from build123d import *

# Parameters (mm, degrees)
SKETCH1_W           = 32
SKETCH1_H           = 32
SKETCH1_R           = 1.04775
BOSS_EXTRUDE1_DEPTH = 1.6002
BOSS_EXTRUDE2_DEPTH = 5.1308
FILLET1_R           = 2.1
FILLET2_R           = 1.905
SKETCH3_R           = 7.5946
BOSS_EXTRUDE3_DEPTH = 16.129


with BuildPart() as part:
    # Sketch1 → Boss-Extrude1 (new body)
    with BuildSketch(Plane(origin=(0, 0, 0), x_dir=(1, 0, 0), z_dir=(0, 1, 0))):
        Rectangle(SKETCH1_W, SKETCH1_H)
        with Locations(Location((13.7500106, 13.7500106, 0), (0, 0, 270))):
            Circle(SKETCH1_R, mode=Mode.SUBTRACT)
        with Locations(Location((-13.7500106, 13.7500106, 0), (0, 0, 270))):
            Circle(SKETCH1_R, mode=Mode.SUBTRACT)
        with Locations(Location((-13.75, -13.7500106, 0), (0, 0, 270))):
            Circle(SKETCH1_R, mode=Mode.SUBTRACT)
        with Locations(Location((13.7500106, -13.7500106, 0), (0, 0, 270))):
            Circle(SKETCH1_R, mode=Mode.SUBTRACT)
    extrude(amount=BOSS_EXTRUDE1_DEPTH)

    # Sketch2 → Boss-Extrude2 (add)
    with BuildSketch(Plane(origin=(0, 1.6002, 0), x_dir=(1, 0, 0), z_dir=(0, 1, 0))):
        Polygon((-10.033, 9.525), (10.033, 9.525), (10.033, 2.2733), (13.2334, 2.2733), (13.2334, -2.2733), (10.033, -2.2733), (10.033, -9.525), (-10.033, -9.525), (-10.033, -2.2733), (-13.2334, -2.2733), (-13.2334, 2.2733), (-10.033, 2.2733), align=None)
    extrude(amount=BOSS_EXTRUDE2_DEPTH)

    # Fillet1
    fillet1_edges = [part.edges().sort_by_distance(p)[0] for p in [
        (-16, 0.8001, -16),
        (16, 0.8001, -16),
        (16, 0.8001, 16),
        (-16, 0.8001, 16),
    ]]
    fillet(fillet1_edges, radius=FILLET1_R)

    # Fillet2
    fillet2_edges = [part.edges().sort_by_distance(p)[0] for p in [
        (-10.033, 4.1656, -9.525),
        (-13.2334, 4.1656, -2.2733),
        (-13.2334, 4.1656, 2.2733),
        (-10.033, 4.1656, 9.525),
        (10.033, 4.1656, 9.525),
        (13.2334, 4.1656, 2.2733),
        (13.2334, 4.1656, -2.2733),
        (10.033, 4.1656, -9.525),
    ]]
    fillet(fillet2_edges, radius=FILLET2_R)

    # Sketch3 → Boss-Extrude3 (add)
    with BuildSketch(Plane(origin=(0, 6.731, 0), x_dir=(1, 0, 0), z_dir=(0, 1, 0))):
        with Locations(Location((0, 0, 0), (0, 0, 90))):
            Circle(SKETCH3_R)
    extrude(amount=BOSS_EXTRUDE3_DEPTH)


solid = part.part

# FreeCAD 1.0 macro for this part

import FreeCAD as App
import Part
import Sketcher
Q = App.Units.Quantity


def edges_at(feature, points):
    """Names of the edges that pass closest to the given points."""
    edges = feature.Shape.Edges
    near = lambda p: min(range(len(edges)), key=lambda i: edges[i].distToShape(Part.Vertex(*p))[0])
    return sorted({f"Edge{near(p) + 1}" for p in points})

doc = App.newDocument("Part")
body = doc.addObject("PartDesign::Body", "Body")

# Sketch on XZ plane
sketch1 = body.newObject("Sketcher::SketchObject", "Sketch")
sketch1.AttachmentSupport = (doc.getObject("XZ_Plane"), [""])
sketch1.MapMode = "FlatFace"
sketch1.addGeometry([
    Part.LineSegment(App.Vector(-16, -16, 0), App.Vector(-16, 16, 0)),  # 0
    Part.LineSegment(App.Vector(-16, 16, 0), App.Vector(16, 16, 0)),  # 1
    Part.LineSegment(App.Vector(16, 16, 0), App.Vector(16, -16, 0)),  # 2
    Part.LineSegment(App.Vector(16, -16, 0), App.Vector(-16, -16, 0)),  # 3
    Part.Circle(App.Vector(-13.8, 13.8, 0), App.Vector(0, 0, 1), 1),  # 4
    Part.Circle(App.Vector(13.8, 13.8, 0), App.Vector(0, 0, 1), 1),  # 5
    Part.Circle(App.Vector(-13.8, -13.8, 0), App.Vector(0, 0, 1), 1),  # 6
    Part.Circle(App.Vector(13.8, -13.8, 0), App.Vector(0, 0, 1), 1),  # 7
], False)
sketch1.addConstraint([
    Sketcher.Constraint("Coincident", 0, 2, 1, 1),
    Sketcher.Constraint("Coincident", 1, 2, 2, 1),
    Sketcher.Constraint("Coincident", 2, 2, 3, 1),
    Sketcher.Constraint("Coincident", 3, 2, 0, 1),
    Sketcher.Constraint("Vertical", 0),
    Sketcher.Constraint("Horizontal", 1),
    Sketcher.Constraint("Vertical", 2),
    Sketcher.Constraint("Horizontal", 3),
    Sketcher.Constraint("Equal", 4, 5),
    Sketcher.Constraint("Equal", 5, 6),
    Sketcher.Constraint("Equal", 6, 7),
    Sketcher.Constraint("Symmetric", 5, 3, 6, 3, -1, 1),
    Sketcher.Constraint("Symmetric", 0, 2, 2, 2, -1, 1),
    Sketcher.Constraint("Symmetric", 6, 3, 7, 3, -2),
    Sketcher.Constraint("Horizontal", 4, 3, 5, 3),
    Sketcher.Constraint("Equal", 3, 0),
    Sketcher.Constraint("Diameter", 4, Q("0.0825 in")),
    Sketcher.Constraint("DistanceX", 1, 1, 1, 2, 32.0),
    Sketcher.Constraint("DistanceX", 4, 3, -1, 1, 13.75),
    Sketcher.Constraint("DistanceY", -1, 1, 4, 3, 13.750011),
    Sketcher.Constraint("DistanceX", -1, 1, 5, 3, 13.750011),
])
pad1 = body.newObject("PartDesign::Pad", "Pad")
pad1.Profile = sketch1
pad1.Length = Q("0.063 in")
pad1.Reversed = True

# Sketch on XZ plane
sketch2 = body.newObject("Sketcher::SketchObject", "Sketch001")
sketch2.AttachmentSupport = (doc.getObject("XZ_Plane"), [""])
sketch2.MapMode = "FlatFace"
sketch2.AttachmentOffset = App.Placement(App.Vector(0, 0, -0.063 * 25.4), App.Rotation())
sketch2.addGeometry([
    Part.LineSegment(App.Vector(10, -9.5, 0), App.Vector(-10, -9.5, 0)),  # 0
    Part.LineSegment(App.Vector(-10, -9.5, 0), App.Vector(-10, -2.3, 0)),  # 1
    Part.LineSegment(App.Vector(-10, -2.3, 0), App.Vector(-13.2, -2.3, 0)),  # 2
    Part.LineSegment(App.Vector(-13.2, -2.3, 0), App.Vector(-13.2, 2.3, 0)),  # 3
    Part.LineSegment(App.Vector(-13.2, 2.3, 0), App.Vector(-10, 2.3, 0)),  # 4
    Part.LineSegment(App.Vector(-10, 2.3, 0), App.Vector(-10, 9.5, 0)),  # 5
    Part.LineSegment(App.Vector(-10, 9.5, 0), App.Vector(10, 9.5, 0)),  # 6
    Part.LineSegment(App.Vector(10, 9.5, 0), App.Vector(10, 2.3, 0)),  # 7
    Part.LineSegment(App.Vector(10, 2.3, 0), App.Vector(13.2, 2.3, 0)),  # 8
    Part.LineSegment(App.Vector(13.2, 2.3, 0), App.Vector(13.2, -2.3, 0)),  # 9
    Part.LineSegment(App.Vector(13.2, -2.3, 0), App.Vector(10, -2.3, 0)),  # 10
    Part.LineSegment(App.Vector(10, -2.3, 0), App.Vector(10, -9.5, 0)),  # 11
], False)
sketch2.addConstraint([
    Sketcher.Constraint("Coincident", 0, 2, 1, 1),
    Sketcher.Constraint("Coincident", 1, 2, 2, 1),
    Sketcher.Constraint("Coincident", 2, 2, 3, 1),
    Sketcher.Constraint("Coincident", 3, 2, 4, 1),
    Sketcher.Constraint("Coincident", 4, 2, 5, 1),
    Sketcher.Constraint("Coincident", 5, 2, 6, 1),
    Sketcher.Constraint("Coincident", 6, 2, 7, 1),
    Sketcher.Constraint("Coincident", 7, 2, 8, 1),
    Sketcher.Constraint("Coincident", 8, 2, 9, 1),
    Sketcher.Constraint("Coincident", 9, 2, 10, 1),
    Sketcher.Constraint("Coincident", 10, 2, 11, 1),
    Sketcher.Constraint("Coincident", 11, 2, 0, 1),
    Sketcher.Constraint("Horizontal", 0),
    Sketcher.Constraint("Vertical", 1),
    Sketcher.Constraint("Horizontal", 2),
    Sketcher.Constraint("Vertical", 3),
    Sketcher.Constraint("Horizontal", 4),
    Sketcher.Constraint("Vertical", 5),
    Sketcher.Constraint("Horizontal", 6),
    Sketcher.Constraint("Vertical", 7),
    Sketcher.Constraint("Horizontal", 8),
    Sketcher.Constraint("Vertical", 9),
    Sketcher.Constraint("Horizontal", 10),
    Sketcher.Constraint("Vertical", 11),
    Sketcher.Constraint("Symmetric", 0, 2, 6, 2, -1, 1),
    Sketcher.Constraint("Symmetric", 2, 2, 8, 2, -1, 1),
    Sketcher.Constraint("Symmetric", 4, 2, 10, 2, -1, 1),
    Sketcher.Constraint("Symmetric", 4, 2, 7, 2, -2),
    Sketcher.Constraint("DistanceX", 0, 2, 0, 1, Q("0.79 in")),
    Sketcher.Constraint("DistanceX", 2, 2, 2, 1, Q("0.126 in")),
    Sketcher.Constraint("DistanceY", 3, 1, 3, 2, Q("0.179 in")),
    Sketcher.Constraint("DistanceY", 0, 2, 5, 2, Q("0.75 in")),
])
pad2 = body.newObject("PartDesign::Pad", "Pad001")
pad2.Profile = sketch2
pad2.Length = Q("0.202 in")
pad2.Reversed = True
doc.recompute()

fillet = body.newObject("PartDesign::Fillet", "Fillet")
fillet.Base = (pad2, edges_at(pad2, [
    (-16, 0.8, -16),
    (16, 0.8, -16),
    (16, 0.8, 16),
    (-16, 0.8, 16),
]))
fillet.Radius = 2.1
doc.recompute()

fillet2 = body.newObject("PartDesign::Fillet", "Fillet001")
fillet2.Base = (fillet, edges_at(fillet, [
    (-10.033, 4.166, -9.525),
    (-13.233, 4.166, -2.273),
    (-13.233, 4.166, 2.273),
    (-10.033, 4.166, 9.525),
    (10.033, 4.166, 9.525),
    (13.233, 4.166, 2.273),
    (13.233, 4.166, -2.273),
    (10.033, 4.166, -9.525),
]))
fillet2.Radius = Q("0.075 in")

# Sketch on XZ plane
sketch3 = body.newObject("Sketcher::SketchObject", "Sketch002")
sketch3.AttachmentSupport = (doc.getObject("XZ_Plane"), [""])
sketch3.MapMode = "FlatFace"
sketch3.AttachmentOffset = App.Placement(App.Vector(0, 0, -0.265 * 25.4), App.Rotation())
sketch3.addGeometry(Part.Circle(App.Vector(0, 0, 0), App.Vector(0, 0, 1), 8), False)
sketch3.addConstraint([
    Sketcher.Constraint("Coincident", 0, 3, -1, 1),
    Sketcher.Constraint("Diameter", 0, Q("0.598 in")),
])
pad3 = body.newObject("PartDesign::Pad", "Pad002")
pad3.Profile = sketch3
pad3.Length = Q("0.635 in")
pad3.Reversed = True

doc.recompute()
